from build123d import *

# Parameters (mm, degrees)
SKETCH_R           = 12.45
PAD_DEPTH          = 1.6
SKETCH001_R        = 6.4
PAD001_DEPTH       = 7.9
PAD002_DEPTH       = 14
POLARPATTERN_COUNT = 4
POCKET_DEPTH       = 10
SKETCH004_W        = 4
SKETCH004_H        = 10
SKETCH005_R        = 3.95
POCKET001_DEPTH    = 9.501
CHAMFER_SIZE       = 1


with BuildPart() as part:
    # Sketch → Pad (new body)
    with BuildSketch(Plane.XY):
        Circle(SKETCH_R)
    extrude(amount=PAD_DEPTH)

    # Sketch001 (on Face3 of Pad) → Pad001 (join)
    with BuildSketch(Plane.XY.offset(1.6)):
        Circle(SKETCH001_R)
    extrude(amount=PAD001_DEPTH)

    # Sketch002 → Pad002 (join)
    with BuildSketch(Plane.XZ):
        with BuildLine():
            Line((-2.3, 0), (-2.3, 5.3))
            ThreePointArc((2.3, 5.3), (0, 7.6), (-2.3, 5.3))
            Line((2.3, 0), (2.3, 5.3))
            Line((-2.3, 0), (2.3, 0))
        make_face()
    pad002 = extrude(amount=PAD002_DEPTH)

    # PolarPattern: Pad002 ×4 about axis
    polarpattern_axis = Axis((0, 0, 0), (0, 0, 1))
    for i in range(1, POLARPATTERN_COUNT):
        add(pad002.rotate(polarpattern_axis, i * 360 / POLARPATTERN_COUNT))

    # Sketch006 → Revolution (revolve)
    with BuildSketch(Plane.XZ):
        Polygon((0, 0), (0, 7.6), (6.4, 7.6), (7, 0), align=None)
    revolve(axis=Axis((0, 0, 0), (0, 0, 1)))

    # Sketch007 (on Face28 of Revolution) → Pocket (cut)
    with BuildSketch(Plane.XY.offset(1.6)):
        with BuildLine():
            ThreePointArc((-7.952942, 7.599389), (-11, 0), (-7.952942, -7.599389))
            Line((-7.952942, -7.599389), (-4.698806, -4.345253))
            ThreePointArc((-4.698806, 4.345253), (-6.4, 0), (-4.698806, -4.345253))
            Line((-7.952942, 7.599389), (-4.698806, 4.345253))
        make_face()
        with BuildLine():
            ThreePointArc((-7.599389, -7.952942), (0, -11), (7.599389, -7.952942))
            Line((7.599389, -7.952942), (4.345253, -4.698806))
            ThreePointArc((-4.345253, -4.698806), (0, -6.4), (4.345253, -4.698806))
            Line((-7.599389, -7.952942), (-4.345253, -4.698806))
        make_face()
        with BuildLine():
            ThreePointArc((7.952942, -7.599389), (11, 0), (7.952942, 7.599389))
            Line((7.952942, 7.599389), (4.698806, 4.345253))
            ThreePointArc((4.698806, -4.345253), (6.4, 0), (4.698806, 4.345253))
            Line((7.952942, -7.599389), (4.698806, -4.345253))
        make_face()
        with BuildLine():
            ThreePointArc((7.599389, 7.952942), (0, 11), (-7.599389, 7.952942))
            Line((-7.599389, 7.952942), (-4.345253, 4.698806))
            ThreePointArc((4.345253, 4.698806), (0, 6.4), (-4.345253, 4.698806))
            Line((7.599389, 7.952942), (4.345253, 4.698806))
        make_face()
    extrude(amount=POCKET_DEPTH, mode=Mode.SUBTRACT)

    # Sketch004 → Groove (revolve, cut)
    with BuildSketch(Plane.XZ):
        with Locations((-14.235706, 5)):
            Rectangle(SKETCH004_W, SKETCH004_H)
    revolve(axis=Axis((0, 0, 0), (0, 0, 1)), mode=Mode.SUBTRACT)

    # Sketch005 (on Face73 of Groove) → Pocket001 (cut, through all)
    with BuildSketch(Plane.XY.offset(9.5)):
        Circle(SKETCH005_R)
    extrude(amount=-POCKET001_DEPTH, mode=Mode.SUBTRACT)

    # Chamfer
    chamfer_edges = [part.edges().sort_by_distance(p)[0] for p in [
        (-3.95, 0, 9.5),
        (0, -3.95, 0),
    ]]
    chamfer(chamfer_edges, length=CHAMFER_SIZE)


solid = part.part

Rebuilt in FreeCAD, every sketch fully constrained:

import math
import FreeCAD as App
import Part
import Sketcher
Q = App.Units.Quantity


def edges_at(feature, points):
    """Names of the edges that pass closest to the given points."""
    edges = feature.Shape.Edges
    near = lambda p: min(range(len(edges)), key=lambda i: edges[i].distToShape(Part.Vertex(*p))[0])
    return sorted({f"Edge{near(p) + 1}" for p in points})


def add_polygon(sketch, points):
    """Adds a closed chain of lines whose ends are joined by coincident constraints."""
    first, n = sketch.GeometryCount, len(points)
    for a, b in zip(points, points[1:] + points[:1]):
        sketch.addGeometry(Part.LineSegment(App.Vector(*a, 0), App.Vector(*b, 0)), False)
    for i in range(n):
        sketch.addConstraint(Sketcher.Constraint("Coincident", first + i, 2, first + (i + 1) % n, 1))

doc = App.newDocument("Part")
body = doc.addObject("PartDesign::Body", "Body")

# Sketch on XY plane
sketch1 = doc.addObject("Sketcher::SketchObject", "Sketch")
body.addObject(sketch1)
sketch1.AttachmentSupport = (doc.XY_Plane, [""])
sketch1.MapMode = "FlatFace"
sketch1.addGeometry(Part.Circle(App.Vector(0, 0, 0), App.Vector(0, 0, 1), 12), False)
sketch1.addConstraint(Sketcher.Constraint("Coincident", 0, 3, -1, 1))
sketch1.addConstraint(Sketcher.Constraint("Diameter", 0, Q("24.9 mm")))
pad1 = doc.addObject("PartDesign::Pad", "Pad")
body.addObject(pad1)
pad1.Profile = sketch1
pad1.Length = 1.6

# Sketch on XY plane
sketch2 = doc.addObject("Sketcher::SketchObject", "Sketch001")
body.addObject(sketch2)
sketch2.AttachmentSupport = (doc.XY_Plane, [""])
sketch2.MapMode = "FlatFace"
sketch2.AttachmentOffset = App.Placement(App.Vector(0, 0, 1.6), App.Rotation())
sketch2.addGeometry(Part.Circle(App.Vector(0, 0, 0), App.Vector(0, 0, 1), 6), False)
sketch2.addConstraint(Sketcher.Constraint("Coincident", 0, 3, -1, 1))
sketch2.addConstraint(Sketcher.Constraint("Diameter", 0, Q("12.8 mm")))
pad2 = doc.addObject("PartDesign::Pad", "Pad001")
body.addObject(pad2)
pad2.Profile = sketch2
pad2.Length = 7.9

# Sketch on XZ plane
sketch3 = doc.addObject("Sketcher::SketchObject", "Sketch002")
body.addObject(sketch3)
sketch3.AttachmentSupport = (doc.XZ_Plane, [""])
sketch3.MapMode = "FlatFace"
sketch3.addGeometry(Part.LineSegment(App.Vector(-2.3, 5.3, 0), App.Vector(-2.3, 0, 0)), False)
sketch3.addGeometry(Part.LineSegment(App.Vector(-2.3, 0, 0), App.Vector(2.3, 0, 0)), False)
sketch3.addGeometry(Part.LineSegment(App.Vector(2.3, 0, 0), App.Vector(2.3, 5.3, 0)), False)
sketch3.addGeometry(Part.ArcOfCircle(Part.Circle(App.Vector(0, 5.3, 0), App.Vector(0, 0, 1), 2.3), math.radians(0), math.radians(180)), False)
sketch3.addConstraint(Sketcher.Constraint("Coincident", 0, 2, 1, 1))
sketch3.addConstraint(Sketcher.Constraint("Coincident", 1, 2, 2, 1))
sketch3.addConstraint(Sketcher.Constraint("Tangent", 2, 2, 3, 1))
sketch3.addConstraint(Sketcher.Constraint("Tangent", 3, 2, 0, 1))
sketch3.addConstraint(Sketcher.Constraint("Vertical", 0))
sketch3.addConstraint(Sketcher.Constraint("Horizontal", 1))
sketch3.addConstraint(Sketcher.Constraint("Vertical", 2))
sketch3.addConstraint(Sketcher.Constraint("Symmetric", 0, 2, 1, 2, -1, 1))
sketch3.addConstraint(Sketcher.Constraint("Radius", 3, Q("2.3 mm")))
sketch3.addConstraint(Sketcher.Constraint("DistanceY", 0, 2, 0, 1, Q("5.3 mm")))
pad3 = doc.addObject("PartDesign::Pad", "Pad002")
body.addObject(pad3)
pad3.Profile = sketch3
pad3.Length = 14
doc.recompute()

polarpattern = doc.addObject("PartDesign::PolarPattern", "PolarPattern")
body.addObject(polarpattern)
polarpattern.Originals = [pad3]
polarpattern.Axis = (doc.Z_Axis, [""])
polarpattern.Angle = 360
polarpattern.Occurrences = 4
body.Tip = polarpattern

# Sketch on XZ plane
sketch4 = doc.addObject("Sketcher::SketchObject", "Sketch003")
body.addObject(sketch4)
sketch4.AttachmentSupport = (doc.XZ_Plane, [""])
sketch4.MapMode = "FlatFace"
add_polygon(sketch4, [(0, 8), (0, 0), (7, 0), (6, 8)])  # lines 0-3
sketch4.addConstraint(Sketcher.Constraint("Vertical", 0))
sketch4.addConstraint(Sketcher.Constraint("Horizontal", 1))
sketch4.addConstraint(Sketcher.Constraint("Horizontal", 3))
sketch4.addConstraint(Sketcher.Constraint("Coincident", 0, 2, -1, 1))
sketch4.addConstraint(Sketcher.Constraint("DistanceX", 1, 1, 1, 2, Q("7 mm")))
sketch4.addConstraint(Sketcher.Constraint("DistanceX", 3, 2, 3, 1, Q("6.4 mm")))
sketch4.addConstraint(Sketcher.Constraint("DistanceY", 0, 2, 0, 1, Q("7.6 mm")))
revolution = doc.addObject("PartDesign::Revolution", "Revolution")
body.addObject(revolution)
revolution.Profile = sketch4
revolution.ReferenceAxis = (sketch4, ["V_Axis"])
revolution.Angle = 360

# Sketch on XY plane
sketch5 = doc.addObject("Sketcher::SketchObject", "Sketch004")
body.addObject(sketch5)
sketch5.AttachmentSupport = (doc.XY_Plane, [""])
sketch5.MapMode = "FlatFace"
sketch5.AttachmentOffset = App.Placement(App.Vector(0, 0, 1.6), App.Rotation())
sketch5.addGeometry(Part.ArcOfCircle(Part.Circle(App.Vector(0, 0, 0), App.Vector(0, 0, 1), 11), math.radians(136), math.radians(224)), False)
sketch5.addGeometry(Part.LineSegment(App.Vector(-8, -7.6, 0), App.Vector(-4.7, -4.3, 0)), False)
sketch5.addGeometry(Part.ArcOfCircle(Part.Circle(App.Vector(0, 0, 0), App.Vector(0, 0, 1), 6.4), math.radians(137), math.radians(223)), False)
sketch5.addGeometry(Part.LineSegment(App.Vector(-4.7, 4.3, 0), App.Vector(-8, 7.6, 0)), False)
sketch5.addGeometry(Part.ArcOfCircle(Part.Circle(App.Vector(0, 0, 0), App.Vector(0, 0, 1), 11), math.radians(-134), math.radians(-46)), False)
sketch5.addGeometry(Part.LineSegment(App.Vector(7.6, -8, 0), App.Vector(4.3, -4.7, 0)), False)
sketch5.addGeometry(Part.ArcOfCircle(Part.Circle(App.Vector(0, 0, 0), App.Vector(0, 0, 1), 6.4), math.radians(-133), math.radians(-47)), False)
sketch5.addGeometry(Part.LineSegment(App.Vector(-4.3, -4.7, 0), App.Vector(-7.6, -8, 0)), False)
sketch5.addGeometry(Part.ArcOfCircle(Part.Circle(App.Vector(0, 0, 0), App.Vector(0, 0, 1), 11), math.radians(-44), math.radians(44)), False)
sketch5.addGeometry(Part.LineSegment(App.Vector(8, 7.6, 0), App.Vector(4.7, 4.3, 0)), False)
sketch5.addGeometry(Part.ArcOfCircle(Part.Circle(App.Vector(0, 0, 0), App.Vector(0, 0, 1), 6.4), math.radians(-43), math.radians(43)), False)
sketch5.addGeometry(Part.LineSegment(App.Vector(4.7, -4.3, 0), App.Vector(8, -7.6, 0)), False)
sketch5.addGeometry(Part.ArcOfCircle(Part.Circle(App.Vector(0, 0, 0), App.Vector(0, 0, 1), 11), math.radians(46), math.radians(134)), False)
sketch5.addGeometry(Part.LineSegment(App.Vector(-7.6, 8, 0), App.Vector(-4.3, 4.7, 0)), False)
sketch5.addGeometry(Part.ArcOfCircle(Part.Circle(App.Vector(0, 0, 0), App.Vector(0, 0, 1), 6.4), math.radians(47), math.radians(133)), False)
sketch5.addGeometry(Part.LineSegment(App.Vector(4.3, 4.7, 0), App.Vector(7.6, 8, 0)), False)
sketch5.addConstraint(Sketcher.Constraint("Coincident", 0, 2, 1, 1))
sketch5.addConstraint(Sketcher.Constraint("Coincident", 1, 2, 2, 2))
sketch5.addConstraint(Sketcher.Constraint("Coincident", 2, 1, 3, 1))
sketch5.addConstraint(Sketcher.Constraint("Coincident", 3, 2, 0, 1))
sketch5.addConstraint(Sketcher.Constraint("Coincident", 4, 2, 5, 1))
sketch5.addConstraint(Sketcher.Constraint("Coincident", 5, 2, 6, 2))
sketch5.addConstraint(Sketcher.Constraint("Coincident", 6, 1, 7, 1))
sketch5.addConstraint(Sketcher.Constraint("Coincident", 7, 2, 4, 1))
sketch5.addConstraint(Sketcher.Constraint("Coincident", 8, 2, 9, 1))
sketch5.addConstraint(Sketcher.Constraint("Coincident", 9, 2, 10, 2))
sketch5.addConstraint(Sketcher.Constraint("Coincident", 10, 1, 11, 1))
sketch5.addConstraint(Sketcher.Constraint("Coincident", 11, 2, 8, 1))
sketch5.addConstraint(Sketcher.Constraint("Coincident", 12, 2, 13, 1))
sketch5.addConstraint(Sketcher.Constraint("Coincident", 13, 2, 14, 2))
sketch5.addConstraint(Sketcher.Constraint("Coincident", 14, 1, 15, 1))
sketch5.addConstraint(Sketcher.Constraint("Coincident", 15, 2, 12, 1))
sketch5.addConstraint(Sketcher.Constraint("Coincident", 0, 3, -1, 1))
sketch5.addConstraint(Sketcher.Constraint("Coincident", 2, 3, -1, 1))
sketch5.addConstraint(Sketcher.Constraint("Coincident", 4, 3, -1, 1))
sketch5.addConstraint(Sketcher.Constraint("Coincident", 6, 3, -1, 1))
sketch5.addConstraint(Sketcher.Constraint("Coincident", 8, 3, -1, 1))
sketch5.addConstraint(Sketcher.Constraint("Coincident", 10, 3, -1, 1))
sketch5.addConstraint(Sketcher.Constraint("Coincident", 12, 3, -1, 1))
sketch5.addConstraint(Sketcher.Constraint("Coincident", 14, 3, -1, 1))
sketch5.addConstraint(Sketcher.Constraint("Equal", 0, 4))
sketch5.addConstraint(Sketcher.Constraint("Equal", 2, 6))
sketch5.addConstraint(Sketcher.Constraint("Equal", 4, 8))
sketch5.addConstraint(Sketcher.Constraint("Equal", 6, 10))
sketch5.addConstraint(Sketcher.Constraint("Equal", 8, 12))
sketch5.addConstraint(Sketcher.Constraint("Equal", 10, 14))
sketch5.addConstraint(Sketcher.Constraint("Perpendicular", 1, 3))
sketch5.addConstraint(Sketcher.Constraint("Parallel", 3, 5))
sketch5.addConstraint(Sketcher.Constraint("Perpendicular", 5, 7))
sketch5.addConstraint(Sketcher.Constraint("Parallel", 7, 9))
sketch5.addConstraint(Sketcher.Constraint("Perpendicular", 9, 11))
sketch5.addConstraint(Sketcher.Constraint("Parallel", 11, 13))
sketch5.addConstraint(Sketcher.Constraint("Perpendicular", 13, 15))
sketch5.addConstraint(Sketcher.Constraint("Horizontal", 5, 2, 6, 1))
sketch5.addConstraint(Sketcher.Constraint("Horizontal", 4, 2, 7, 2))
sketch5.addConstraint(Sketcher.Constraint("Horizontal", 3, 2, 8, 2))
sketch5.addConstraint(Sketcher.Constraint("Horizontal", 1, 2, 10, 1))
sketch5.addConstraint(Sketcher.Constraint("Horizontal", 13, 2, 14, 1))
sketch5.addConstraint(Sketcher.Constraint("Vertical", 1, 2, 2, 1))
sketch5.addConstraint(Sketcher.Constraint("Vertical", 7, 2, 12, 2))
sketch5.addConstraint(Sketcher.Constraint("Equal", 3, 5))
sketch5.addConstraint(Sketcher.Constraint("Radius", 0, Q("11 mm")))
sketch5.addConstraint(Sketcher.Constraint("Radius", 2, Q("6.4 mm")))
sketch5.addConstraint(Sketcher.Constraint("DistanceX", 0, 2, -1, 1, Q("7.952942 mm")))
pocket1 = doc.addObject("PartDesign::Pocket", "Pocket")
body.addObject(pocket1)
pocket1.Profile = sketch5
pocket1.Length = 10
pocket1.Reversed = True

# Sketch on XZ plane
sketch6 = doc.addObject("Sketcher::SketchObject", "Sketch005")
body.addObject(sketch6)
sketch6.AttachmentSupport = (doc.XZ_Plane, [""])
sketch6.MapMode = "FlatFace"
add_polygon(sketch6, [(-16.2, 10), (-16.2, 0), (-12.2, 0), (-12.2, 10)])  # lines 0-3
sketch6.addConstraint(Sketcher.Constraint("Vertical", 0))
sketch6.addConstraint(Sketcher.Constraint("Horizontal", 1))
sketch6.addConstraint(Sketcher.Constraint("Vertical", 2))
sketch6.addConstraint(Sketcher.Constraint("Horizontal", 3))
sketch6.addConstraint(Sketcher.Constraint("PointOnObject", 0, 2, -1))
sketch6.addConstraint(Sketcher.Constraint("DistanceX", 1, 1, 1, 2, Q("4 mm")))
sketch6.addConstraint(Sketcher.Constraint("DistanceY", 0, 2, 0, 1, Q("10 mm")))
sketch6.addConstraint(Sketcher.Constraint("DistanceX", 0, 2, -1, 1, Q("16.235706 mm")))
groove = doc.addObject("PartDesign::Groove", "Groove")
body.addObject(groove)
groove.Profile = sketch6
groove.ReferenceAxis = (sketch6, ["V_Axis"])
groove.Angle = 360

# Sketch on XY plane
sketch7 = doc.addObject("Sketcher::SketchObject", "Sketch006")
body.addObject(sketch7)
sketch7.AttachmentSupport = (doc.XY_Plane, [""])
sketch7.MapMode = "FlatFace"
sketch7.AttachmentOffset = App.Placement(App.Vector(0, 0, 9.5), App.Rotation())
sketch7.addGeometry(Part.Circle(App.Vector(0, 0, 0), App.Vector(0, 0, 1), 4), False)
sketch7.addConstraint(Sketcher.Constraint("Coincident", 0, 3, -1, 1))
sketch7.addConstraint(Sketcher.Constraint("Diameter", 0, Q("7.9 mm")))
pocket2 = doc.addObject("PartDesign::Pocket", "Pocket001")
body.addObject(pocket2)
pocket2.Profile = sketch7
pocket2.Type = "ThroughAll"
doc.recompute()

chamfer = doc.addObject("PartDesign::Chamfer", "Chamfer")
body.addObject(chamfer)
chamfer.Base = (pocket2, edges_at(pocket2, [(-3.95, 0, 9.5), (-3.95, 0, 0)]))
chamfer.Size = 1

doc.recompute()
